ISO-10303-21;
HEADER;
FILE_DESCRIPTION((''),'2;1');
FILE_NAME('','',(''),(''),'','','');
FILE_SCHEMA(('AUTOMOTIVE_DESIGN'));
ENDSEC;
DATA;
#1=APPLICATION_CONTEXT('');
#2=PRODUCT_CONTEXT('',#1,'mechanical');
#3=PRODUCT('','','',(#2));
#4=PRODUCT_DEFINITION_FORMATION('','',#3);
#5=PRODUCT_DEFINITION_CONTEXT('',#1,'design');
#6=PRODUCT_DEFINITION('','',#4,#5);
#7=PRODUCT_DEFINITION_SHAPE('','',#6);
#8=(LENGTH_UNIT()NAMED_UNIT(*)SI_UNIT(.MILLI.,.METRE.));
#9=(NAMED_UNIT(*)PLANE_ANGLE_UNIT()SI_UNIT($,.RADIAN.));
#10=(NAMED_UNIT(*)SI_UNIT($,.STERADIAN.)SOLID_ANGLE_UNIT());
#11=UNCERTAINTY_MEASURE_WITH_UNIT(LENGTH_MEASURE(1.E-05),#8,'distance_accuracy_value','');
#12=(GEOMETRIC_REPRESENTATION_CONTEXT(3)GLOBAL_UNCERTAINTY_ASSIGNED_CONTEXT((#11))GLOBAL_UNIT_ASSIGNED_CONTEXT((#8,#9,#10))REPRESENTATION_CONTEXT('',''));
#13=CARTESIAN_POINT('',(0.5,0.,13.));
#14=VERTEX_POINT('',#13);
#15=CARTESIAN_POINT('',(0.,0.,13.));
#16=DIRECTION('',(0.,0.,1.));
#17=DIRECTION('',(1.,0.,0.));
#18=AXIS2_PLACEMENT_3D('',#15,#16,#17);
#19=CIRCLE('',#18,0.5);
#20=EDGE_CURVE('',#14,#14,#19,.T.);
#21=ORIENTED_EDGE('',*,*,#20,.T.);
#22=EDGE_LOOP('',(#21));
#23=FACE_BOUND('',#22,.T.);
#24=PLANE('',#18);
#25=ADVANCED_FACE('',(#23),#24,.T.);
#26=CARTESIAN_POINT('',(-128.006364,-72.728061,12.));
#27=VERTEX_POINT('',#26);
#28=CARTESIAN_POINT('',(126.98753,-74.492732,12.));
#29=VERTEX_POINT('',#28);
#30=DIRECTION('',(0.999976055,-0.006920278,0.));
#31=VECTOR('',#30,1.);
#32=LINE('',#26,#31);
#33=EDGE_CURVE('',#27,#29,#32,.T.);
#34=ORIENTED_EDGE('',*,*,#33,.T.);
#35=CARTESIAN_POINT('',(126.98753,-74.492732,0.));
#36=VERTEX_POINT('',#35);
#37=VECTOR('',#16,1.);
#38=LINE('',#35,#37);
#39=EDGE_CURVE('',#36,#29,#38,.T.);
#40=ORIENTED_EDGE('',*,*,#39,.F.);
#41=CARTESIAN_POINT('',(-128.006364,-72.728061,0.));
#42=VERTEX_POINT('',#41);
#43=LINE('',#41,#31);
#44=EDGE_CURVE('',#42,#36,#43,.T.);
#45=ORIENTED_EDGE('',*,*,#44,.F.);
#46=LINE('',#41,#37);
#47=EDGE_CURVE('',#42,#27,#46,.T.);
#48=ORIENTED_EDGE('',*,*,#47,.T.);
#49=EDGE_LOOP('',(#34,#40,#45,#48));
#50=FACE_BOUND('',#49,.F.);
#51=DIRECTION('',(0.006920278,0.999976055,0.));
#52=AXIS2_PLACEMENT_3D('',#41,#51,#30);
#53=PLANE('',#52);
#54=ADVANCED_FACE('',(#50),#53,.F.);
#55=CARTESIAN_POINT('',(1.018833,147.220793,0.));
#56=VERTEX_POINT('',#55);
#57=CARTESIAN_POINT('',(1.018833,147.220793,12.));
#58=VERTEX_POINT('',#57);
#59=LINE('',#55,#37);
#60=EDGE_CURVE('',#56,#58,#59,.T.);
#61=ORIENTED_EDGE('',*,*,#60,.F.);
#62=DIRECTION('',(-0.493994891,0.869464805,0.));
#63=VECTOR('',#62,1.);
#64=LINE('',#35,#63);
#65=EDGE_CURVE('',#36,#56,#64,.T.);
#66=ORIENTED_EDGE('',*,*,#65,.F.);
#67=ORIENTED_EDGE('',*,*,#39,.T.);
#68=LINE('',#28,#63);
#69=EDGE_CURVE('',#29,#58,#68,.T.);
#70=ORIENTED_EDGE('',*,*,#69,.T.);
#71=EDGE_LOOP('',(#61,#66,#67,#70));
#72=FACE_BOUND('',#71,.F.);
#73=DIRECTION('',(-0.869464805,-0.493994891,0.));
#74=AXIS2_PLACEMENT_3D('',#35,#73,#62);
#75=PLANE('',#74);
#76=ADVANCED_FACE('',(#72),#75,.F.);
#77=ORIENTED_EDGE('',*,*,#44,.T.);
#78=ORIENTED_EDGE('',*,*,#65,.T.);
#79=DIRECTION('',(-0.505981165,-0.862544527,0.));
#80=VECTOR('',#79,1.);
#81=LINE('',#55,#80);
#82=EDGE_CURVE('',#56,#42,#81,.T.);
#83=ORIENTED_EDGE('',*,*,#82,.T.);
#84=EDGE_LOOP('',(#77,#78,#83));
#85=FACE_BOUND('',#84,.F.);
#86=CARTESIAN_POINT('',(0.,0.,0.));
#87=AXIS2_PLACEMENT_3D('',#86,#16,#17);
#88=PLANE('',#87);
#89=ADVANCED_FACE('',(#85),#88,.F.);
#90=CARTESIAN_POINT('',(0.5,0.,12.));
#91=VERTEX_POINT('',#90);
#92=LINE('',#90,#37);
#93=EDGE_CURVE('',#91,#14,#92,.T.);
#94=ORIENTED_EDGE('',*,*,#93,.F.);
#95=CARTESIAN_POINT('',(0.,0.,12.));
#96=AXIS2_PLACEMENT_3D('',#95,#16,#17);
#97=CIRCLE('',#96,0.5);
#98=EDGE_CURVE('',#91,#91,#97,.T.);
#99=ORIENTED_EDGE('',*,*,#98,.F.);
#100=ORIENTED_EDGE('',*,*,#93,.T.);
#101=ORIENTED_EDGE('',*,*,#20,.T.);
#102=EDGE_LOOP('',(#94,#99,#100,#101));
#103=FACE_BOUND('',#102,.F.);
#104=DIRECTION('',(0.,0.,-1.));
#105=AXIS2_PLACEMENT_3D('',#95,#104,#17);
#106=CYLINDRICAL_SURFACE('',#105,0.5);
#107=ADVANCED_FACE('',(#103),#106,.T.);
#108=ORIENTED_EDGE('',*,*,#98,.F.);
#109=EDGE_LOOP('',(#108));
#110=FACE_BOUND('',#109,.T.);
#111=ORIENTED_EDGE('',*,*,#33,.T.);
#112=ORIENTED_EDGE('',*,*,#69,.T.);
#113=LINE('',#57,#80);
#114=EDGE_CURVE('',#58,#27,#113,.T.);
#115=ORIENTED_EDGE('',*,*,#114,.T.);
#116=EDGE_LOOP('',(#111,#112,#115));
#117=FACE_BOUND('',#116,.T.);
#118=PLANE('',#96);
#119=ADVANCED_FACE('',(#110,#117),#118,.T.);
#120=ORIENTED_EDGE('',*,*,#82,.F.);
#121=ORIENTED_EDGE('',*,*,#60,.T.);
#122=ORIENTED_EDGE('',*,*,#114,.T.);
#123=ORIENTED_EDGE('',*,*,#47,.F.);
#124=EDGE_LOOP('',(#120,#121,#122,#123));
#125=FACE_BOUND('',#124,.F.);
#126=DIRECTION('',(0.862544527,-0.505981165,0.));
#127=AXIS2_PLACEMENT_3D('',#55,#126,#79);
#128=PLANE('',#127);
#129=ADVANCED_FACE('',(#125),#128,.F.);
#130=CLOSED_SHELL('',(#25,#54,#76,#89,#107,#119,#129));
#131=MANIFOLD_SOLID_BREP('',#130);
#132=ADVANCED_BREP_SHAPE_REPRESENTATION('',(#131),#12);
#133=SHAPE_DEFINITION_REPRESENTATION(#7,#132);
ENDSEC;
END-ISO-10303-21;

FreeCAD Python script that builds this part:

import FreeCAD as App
import Part
import Sketcher
from FreeCAD import Vector

doc = App.newDocument("Part")
body = doc.addObject("PartDesign::Body", "Body")

# Sketch on XY plane
sketch1 = body.newObject("Sketcher::SketchObject", "Sketch")
sketch1.AttachmentSupport = (doc.getObject("XY_Plane"), [""])
sketch1.MapMode = "FlatFace"
sketch1.addGeometry(Part.LineSegment(Vector(126.98753, -74.492732, 0), Vector(1.018833, 147.220793, 0)), False)
sketch1.addGeometry(Part.LineSegment(Vector(1.018833, 147.220793, 0), Vector(-128.006364, -72.728061, 0)), False)
sketch1.addGeometry(Part.LineSegment(Vector(-128.006364, -72.728061, 0), Vector(126.98753, -74.492732, 0)), False)
sketch1.addConstraint(Sketcher.Constraint("Coincident", 0, 2, 1, 1))
sketch1.addConstraint(Sketcher.Constraint("Coincident", 1, 2, 2, 1))
sketch1.addConstraint(Sketcher.Constraint("Coincident", 2, 2, 0, 1))
sketch1.addConstraint(Sketcher.Constraint("Equal", 0, 1))
sketch1.addConstraint(Sketcher.Constraint("Equal", 1, 2))
sketch1.addConstraint(Sketcher.Constraint("Distance", 0, 255.0))
sketch1.addConstraint(Sketcher.Constraint("DistanceY", 1, 2, -1, 1, 72.728061))
sketch1.addConstraint(Sketcher.Constraint("DistanceX", -1, 1, 2, 2, 126.98753))
sketch1.addConstraint(Sketcher.Constraint("DistanceY", 2, 2, 1, 2, 1.764671))
pad1 = body.newObject("PartDesign::Pad", "Pad")
pad1.Profile = sketch1
pad1.Length = 12

# Sketch on XY plane
sketch2 = body.newObject("Sketcher::SketchObject", "Sketch001")
sketch2.AttachmentSupport = (doc.getObject("XY_Plane"), [""])
sketch2.MapMode = "FlatFace"
sketch2.AttachmentOffset = App.Placement(Vector(0, 0, 12), App.Rotation())
sketch2.addGeometry(Part.Circle(Vector(0, 0, 0), Vector(0, 0, 1), 0.5), False)
sketch2.addConstraint(Sketcher.Constraint("Coincident", 0, 3, -1, 1))
sketch2.addConstraint(Sketcher.Constraint("Diameter", 0, 1.0))
pad2 = body.newObject("PartDesign::Pad", "Pad001")
pad2.Profile = sketch2
pad2.Length = 1

doc.recompute()
